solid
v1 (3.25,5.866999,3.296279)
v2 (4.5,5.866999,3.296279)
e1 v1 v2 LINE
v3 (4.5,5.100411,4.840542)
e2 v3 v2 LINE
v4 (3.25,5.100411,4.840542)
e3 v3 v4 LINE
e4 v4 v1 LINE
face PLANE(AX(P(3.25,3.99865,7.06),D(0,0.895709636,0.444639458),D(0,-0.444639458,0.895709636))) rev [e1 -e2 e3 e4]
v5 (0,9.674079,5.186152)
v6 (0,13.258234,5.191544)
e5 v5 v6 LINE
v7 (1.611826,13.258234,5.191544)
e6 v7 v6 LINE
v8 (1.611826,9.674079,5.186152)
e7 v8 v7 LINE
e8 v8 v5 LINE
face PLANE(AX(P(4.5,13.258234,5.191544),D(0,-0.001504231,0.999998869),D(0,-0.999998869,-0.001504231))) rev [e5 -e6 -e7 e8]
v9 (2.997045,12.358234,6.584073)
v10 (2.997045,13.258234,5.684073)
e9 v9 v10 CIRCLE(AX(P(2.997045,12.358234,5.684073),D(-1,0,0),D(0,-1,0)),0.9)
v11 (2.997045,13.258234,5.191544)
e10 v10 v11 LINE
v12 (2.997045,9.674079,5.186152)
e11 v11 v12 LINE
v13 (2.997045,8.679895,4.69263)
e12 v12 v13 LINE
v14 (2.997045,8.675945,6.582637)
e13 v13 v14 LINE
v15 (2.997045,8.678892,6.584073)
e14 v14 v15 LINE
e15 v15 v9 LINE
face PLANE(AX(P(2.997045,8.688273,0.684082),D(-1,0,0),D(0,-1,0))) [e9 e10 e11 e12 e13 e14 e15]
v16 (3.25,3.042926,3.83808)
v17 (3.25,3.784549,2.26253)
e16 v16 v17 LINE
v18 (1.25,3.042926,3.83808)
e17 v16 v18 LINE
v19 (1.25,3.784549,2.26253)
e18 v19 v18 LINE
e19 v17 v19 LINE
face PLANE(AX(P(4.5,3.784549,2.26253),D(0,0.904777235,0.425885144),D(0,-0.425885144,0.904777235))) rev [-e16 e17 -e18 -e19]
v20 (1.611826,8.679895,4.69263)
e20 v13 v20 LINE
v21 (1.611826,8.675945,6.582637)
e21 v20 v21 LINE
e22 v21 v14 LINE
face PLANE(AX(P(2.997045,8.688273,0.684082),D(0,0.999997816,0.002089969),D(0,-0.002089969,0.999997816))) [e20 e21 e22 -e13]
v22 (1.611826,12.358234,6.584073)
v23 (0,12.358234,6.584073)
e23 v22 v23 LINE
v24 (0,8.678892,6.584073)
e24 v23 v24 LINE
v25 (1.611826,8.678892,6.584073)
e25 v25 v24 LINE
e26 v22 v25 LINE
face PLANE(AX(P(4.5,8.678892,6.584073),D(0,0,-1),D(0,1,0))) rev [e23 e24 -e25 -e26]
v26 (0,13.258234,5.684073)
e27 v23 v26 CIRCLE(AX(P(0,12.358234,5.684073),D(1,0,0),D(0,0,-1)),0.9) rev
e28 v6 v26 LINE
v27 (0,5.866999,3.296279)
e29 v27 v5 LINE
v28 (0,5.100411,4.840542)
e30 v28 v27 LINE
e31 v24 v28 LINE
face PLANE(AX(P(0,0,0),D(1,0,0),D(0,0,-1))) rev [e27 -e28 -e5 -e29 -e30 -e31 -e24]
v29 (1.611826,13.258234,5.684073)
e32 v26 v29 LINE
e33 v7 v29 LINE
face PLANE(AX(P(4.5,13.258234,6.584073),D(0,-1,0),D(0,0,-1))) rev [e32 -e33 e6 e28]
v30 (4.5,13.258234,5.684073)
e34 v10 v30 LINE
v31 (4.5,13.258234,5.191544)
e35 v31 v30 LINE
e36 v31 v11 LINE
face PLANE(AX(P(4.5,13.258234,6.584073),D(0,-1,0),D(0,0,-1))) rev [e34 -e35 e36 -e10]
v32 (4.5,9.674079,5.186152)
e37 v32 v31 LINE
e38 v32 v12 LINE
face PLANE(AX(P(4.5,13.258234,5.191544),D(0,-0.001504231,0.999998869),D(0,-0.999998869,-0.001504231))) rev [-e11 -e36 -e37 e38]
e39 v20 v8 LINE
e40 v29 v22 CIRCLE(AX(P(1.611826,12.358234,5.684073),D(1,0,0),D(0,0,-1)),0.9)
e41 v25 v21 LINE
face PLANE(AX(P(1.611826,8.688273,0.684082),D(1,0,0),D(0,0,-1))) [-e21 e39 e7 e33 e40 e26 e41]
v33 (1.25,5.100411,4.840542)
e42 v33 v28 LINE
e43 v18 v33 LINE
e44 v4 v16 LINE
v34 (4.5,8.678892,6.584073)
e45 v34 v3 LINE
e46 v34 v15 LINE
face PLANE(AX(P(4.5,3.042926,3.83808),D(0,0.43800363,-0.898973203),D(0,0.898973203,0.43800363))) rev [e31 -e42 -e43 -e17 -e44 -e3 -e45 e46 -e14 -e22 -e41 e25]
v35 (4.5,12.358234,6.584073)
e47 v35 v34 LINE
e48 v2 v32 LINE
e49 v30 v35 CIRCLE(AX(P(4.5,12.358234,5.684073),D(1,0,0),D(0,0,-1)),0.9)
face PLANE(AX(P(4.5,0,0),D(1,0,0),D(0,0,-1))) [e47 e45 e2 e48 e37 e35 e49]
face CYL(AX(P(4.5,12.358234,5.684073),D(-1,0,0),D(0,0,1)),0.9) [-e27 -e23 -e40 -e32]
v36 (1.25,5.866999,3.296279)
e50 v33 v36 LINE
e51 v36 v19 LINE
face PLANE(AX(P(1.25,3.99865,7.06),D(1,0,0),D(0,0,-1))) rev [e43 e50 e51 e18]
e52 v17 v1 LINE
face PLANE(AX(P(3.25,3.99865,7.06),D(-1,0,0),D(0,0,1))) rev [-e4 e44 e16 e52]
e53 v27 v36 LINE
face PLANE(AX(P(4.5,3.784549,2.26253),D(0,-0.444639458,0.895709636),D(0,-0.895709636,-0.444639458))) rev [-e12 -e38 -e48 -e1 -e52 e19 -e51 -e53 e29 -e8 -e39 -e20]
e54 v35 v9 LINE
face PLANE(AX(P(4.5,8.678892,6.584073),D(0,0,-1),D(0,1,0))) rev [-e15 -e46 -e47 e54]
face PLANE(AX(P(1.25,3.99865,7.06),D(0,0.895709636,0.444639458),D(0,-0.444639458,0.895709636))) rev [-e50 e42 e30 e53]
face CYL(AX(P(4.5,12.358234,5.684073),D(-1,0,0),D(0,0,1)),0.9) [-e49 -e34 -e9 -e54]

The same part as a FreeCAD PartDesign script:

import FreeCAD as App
import Part
import Sketcher

V = App.Vector


def edges_at(feature, points):
    """Names of the edges that pass closest to the given points."""
    edges = feature.Shape.Edges
    near = lambda p: min(range(len(edges)), key=lambda i: edges[i].distToShape(Part.Vertex(*p))[0])
    return sorted({f"Edge{near(p) + 1}" for p in points})


def add_polygon(sketch, points):
    """Adds a closed chain of lines whose ends are joined by coincident constraints."""
    first, n = sketch.GeometryCount, len(points)
    for a, b in zip(points, points[1:] + points[:1]):
        sketch.addGeometry(Part.LineSegment(App.Vector(*a, 0), App.Vector(*b, 0)), False)
    for i in range(n):
        sketch.addConstraint(Sketcher.Constraint("Coincident", first + i, 2, first + (i + 1) % n, 1))

doc = App.newDocument("Part")
body = doc.addObject("PartDesign::Body", "Body")

# Sketch on YZ plane
sketch1 = body.newObject("Sketcher::SketchObject", "Sketch")
sketch1.AttachmentSupport = (doc.getObject("YZ_Plane"), [""])
sketch1.MapMode = "FlatFace"
add_polygon(sketch1, [(9.7, 5.2), (13.3, 5.2), (13.3, 6.6), (8.7, 6.6), (3, 3.8), (3.8, 2.3)])  # lines 0-5
sketch1.addConstraint([
    Sketcher.Constraint("Vertical", 1),
    Sketcher.Constraint("Horizontal", 2),
    Sketcher.Constraint("DistanceY", 1, 1, 1, 2, 1.392529),
    Sketcher.Constraint("Distance", 0, 3.58416),
    Sketcher.Constraint("Distance", 4, 1.741369),
    Sketcher.Constraint("DistanceX", 2, 2, 2, 1, 4.579343),
    Sketcher.Constraint("DistanceX", -1, 1, 2, 2, 8.678892),
    Sketcher.Constraint("DistanceY", -1, 1, 3, 2, 3.83808),
    Sketcher.Constraint("DistanceX", -1, 1, 4, 2, 3.784549),
    Sketcher.Constraint("DistanceY", -1, 1, 4, 2, 2.26253),
    Sketcher.Constraint("DistanceY", 5, 2, 2, 2, 1.39792),
    Sketcher.Constraint("Distance", 3, 6.269336),
])
pad1 = body.newObject("PartDesign::Pad", "Pad")
pad1.Profile = sketch1
pad1.Length = 4.5

# Sketch on an angled plane
sketch2 = body.newObject("Sketcher::SketchObject", "Sketch001")
sketch2.Placement = App.Placement(V(0, -0.010797, 5.165911), App.Rotation(V(-1, 0, 0), V(0, 0.999997816, 0.002089969), V(0, 0.002089969, -0.999997816), "ZXY"))
add_polygon(sketch2, [(-3, 13.3), (-3, 8.7), (-1.6, 8.7), (-1.6, 13.3)])  # lines 0-3
sketch2.addConstraint([
    Sketcher.Constraint("Vertical", 0),
    Sketcher.Constraint("Horizontal", 1),
    Sketcher.Constraint("Vertical", 2),
    Sketcher.Constraint("Horizontal", 3),
    Sketcher.Constraint("DistanceY", 0, 2, 0, 1, 4.6),
    Sketcher.Constraint("DistanceX", 1, 1, 1, 2, 1.38522),
    Sketcher.Constraint("DistanceX", 0, 2, -1, 1, 2.997045),
    Sketcher.Constraint("DistanceY", -1, 1, 0, 2, 8.689684),
])
pocket1 = body.newObject("PartDesign::Pocket", "Pocket")
pocket1.Profile = sketch2
pocket1.Type = "UpToFirst"

# Sketch on an angled plane
sketch3 = body.newObject("Sketcher::SketchObject", "Sketch002")
sketch3.Placement = App.Placement(V(0, -0.010797, 5.165911), App.Rotation(V(-1, 0, 0), V(0, 0.999997816, 0.002089969), V(0, 0.002089969, -0.999997816), "ZXY"))
add_polygon(sketch3, [(-3, 13.3), (-3, 8.7), (-1.6, 8.7), (-1.6, 13.3)])  # lines 0-3
sketch3.addConstraint([
    Sketcher.Constraint("Vertical", 0),
    Sketcher.Constraint("Horizontal", 1),
    Sketcher.Constraint("Vertical", 2),
    Sketcher.Constraint("Horizontal", 3),
    Sketcher.Constraint("DistanceY", 0, 2, 0, 1, 4.6),
    Sketcher.Constraint("DistanceX", 1, 1, 1, 2, 1.38522),
    Sketcher.Constraint("DistanceX", 0, 2, -1, 1, 2.997045),
    Sketcher.Constraint("DistanceY", -1, 1, 0, 2, 8.689684),
])
pocket2 = body.newObject("PartDesign::Pocket", "Pocket001")
pocket2.Profile = sketch3
pocket2.Length = 4.5
pocket2.Reversed = True
doc.recompute()

fillet = body.newObject("PartDesign::Fillet", "Fillet")
fillet.Base = (pocket2, edges_at(pocket2, [(3.749, 13.258, 6.584), (0.806, 13.258, 6.584)]))
fillet.Radius = 0.9

# Sketch on an angled plane
sketch4 = body.newObject("Sketcher::SketchObject", "Sketch003")
sketch4.Placement = App.Placement(V(0, -0.152871, 0.307954), App.Rotation(V(-1, 0, 0), V(0, 0.895709636, 0.444639458), V(0, 0.444639458, -0.895709636), "ZXY"))
add_polygon(sketch4, [(-1.2, 6.7), (-1.2, 4.4), (0, 4.4), (0, 6.7)])  # lines 0-3
sketch4.addConstraint([
    Sketcher.Constraint("Vertical", 0),
    Sketcher.Constraint("Horizontal", 1),
    Sketcher.Constraint("Vertical", 2),
    Sketcher.Constraint("Horizontal", 3),
    Sketcher.Constraint("PointOnObject", 1, 2, -2),
    Sketcher.Constraint("DistanceX", 1, 1, 1, 2, 1.25),
    Sketcher.Constraint("DistanceY", 0, 2, 0, 1, 2.324916),
    Sketcher.Constraint("DistanceY", -1, 1, 0, 2, 4.395867),
])
pocket3 = body.newObject("PartDesign::Pocket", "Pocket002")
pocket3.Profile = sketch4
pocket3.Type = "UpToFirst"

# Sketch on an angled plane
sketch5 = body.newObject("Sketcher::SketchObject", "Sketch004")
sketch5.Placement = App.Placement(V(0, -0.152871, 0.307954), App.Rotation(V(-1, 0, 0), V(0, 0.895709636, 0.444639458), V(0, 0.444639458, -0.895709636), "ZXY"))
add_polygon(sketch5, [(-4.5, 6.7), (-4.5, 4.4), (-3.2, 4.4), (-3.2, 6.7)])  # lines 0-3
sketch5.addConstraint([
    Sketcher.Constraint("Vertical", 0),
    Sketcher.Constraint("Horizontal", 1),
    Sketcher.Constraint("Vertical", 2),
    Sketcher.Constraint("Horizontal", 3),
    Sketcher.Constraint("DistanceX", 1, 1, 1, 2, 1.25),
    Sketcher.Constraint("DistanceX", 0, 2, -1, 1, 4.5),
    Sketcher.Constraint("DistanceY", 0, 2, 0, 1, 2.324916),
    Sketcher.Constraint("DistanceY", -1, 1, 0, 2, 4.395867),
])
pocket4 = body.newObject("PartDesign::Pocket", "Pocket003")
pocket4.Profile = sketch5
pocket4.Type = "UpToFirst"

doc.recompute()
